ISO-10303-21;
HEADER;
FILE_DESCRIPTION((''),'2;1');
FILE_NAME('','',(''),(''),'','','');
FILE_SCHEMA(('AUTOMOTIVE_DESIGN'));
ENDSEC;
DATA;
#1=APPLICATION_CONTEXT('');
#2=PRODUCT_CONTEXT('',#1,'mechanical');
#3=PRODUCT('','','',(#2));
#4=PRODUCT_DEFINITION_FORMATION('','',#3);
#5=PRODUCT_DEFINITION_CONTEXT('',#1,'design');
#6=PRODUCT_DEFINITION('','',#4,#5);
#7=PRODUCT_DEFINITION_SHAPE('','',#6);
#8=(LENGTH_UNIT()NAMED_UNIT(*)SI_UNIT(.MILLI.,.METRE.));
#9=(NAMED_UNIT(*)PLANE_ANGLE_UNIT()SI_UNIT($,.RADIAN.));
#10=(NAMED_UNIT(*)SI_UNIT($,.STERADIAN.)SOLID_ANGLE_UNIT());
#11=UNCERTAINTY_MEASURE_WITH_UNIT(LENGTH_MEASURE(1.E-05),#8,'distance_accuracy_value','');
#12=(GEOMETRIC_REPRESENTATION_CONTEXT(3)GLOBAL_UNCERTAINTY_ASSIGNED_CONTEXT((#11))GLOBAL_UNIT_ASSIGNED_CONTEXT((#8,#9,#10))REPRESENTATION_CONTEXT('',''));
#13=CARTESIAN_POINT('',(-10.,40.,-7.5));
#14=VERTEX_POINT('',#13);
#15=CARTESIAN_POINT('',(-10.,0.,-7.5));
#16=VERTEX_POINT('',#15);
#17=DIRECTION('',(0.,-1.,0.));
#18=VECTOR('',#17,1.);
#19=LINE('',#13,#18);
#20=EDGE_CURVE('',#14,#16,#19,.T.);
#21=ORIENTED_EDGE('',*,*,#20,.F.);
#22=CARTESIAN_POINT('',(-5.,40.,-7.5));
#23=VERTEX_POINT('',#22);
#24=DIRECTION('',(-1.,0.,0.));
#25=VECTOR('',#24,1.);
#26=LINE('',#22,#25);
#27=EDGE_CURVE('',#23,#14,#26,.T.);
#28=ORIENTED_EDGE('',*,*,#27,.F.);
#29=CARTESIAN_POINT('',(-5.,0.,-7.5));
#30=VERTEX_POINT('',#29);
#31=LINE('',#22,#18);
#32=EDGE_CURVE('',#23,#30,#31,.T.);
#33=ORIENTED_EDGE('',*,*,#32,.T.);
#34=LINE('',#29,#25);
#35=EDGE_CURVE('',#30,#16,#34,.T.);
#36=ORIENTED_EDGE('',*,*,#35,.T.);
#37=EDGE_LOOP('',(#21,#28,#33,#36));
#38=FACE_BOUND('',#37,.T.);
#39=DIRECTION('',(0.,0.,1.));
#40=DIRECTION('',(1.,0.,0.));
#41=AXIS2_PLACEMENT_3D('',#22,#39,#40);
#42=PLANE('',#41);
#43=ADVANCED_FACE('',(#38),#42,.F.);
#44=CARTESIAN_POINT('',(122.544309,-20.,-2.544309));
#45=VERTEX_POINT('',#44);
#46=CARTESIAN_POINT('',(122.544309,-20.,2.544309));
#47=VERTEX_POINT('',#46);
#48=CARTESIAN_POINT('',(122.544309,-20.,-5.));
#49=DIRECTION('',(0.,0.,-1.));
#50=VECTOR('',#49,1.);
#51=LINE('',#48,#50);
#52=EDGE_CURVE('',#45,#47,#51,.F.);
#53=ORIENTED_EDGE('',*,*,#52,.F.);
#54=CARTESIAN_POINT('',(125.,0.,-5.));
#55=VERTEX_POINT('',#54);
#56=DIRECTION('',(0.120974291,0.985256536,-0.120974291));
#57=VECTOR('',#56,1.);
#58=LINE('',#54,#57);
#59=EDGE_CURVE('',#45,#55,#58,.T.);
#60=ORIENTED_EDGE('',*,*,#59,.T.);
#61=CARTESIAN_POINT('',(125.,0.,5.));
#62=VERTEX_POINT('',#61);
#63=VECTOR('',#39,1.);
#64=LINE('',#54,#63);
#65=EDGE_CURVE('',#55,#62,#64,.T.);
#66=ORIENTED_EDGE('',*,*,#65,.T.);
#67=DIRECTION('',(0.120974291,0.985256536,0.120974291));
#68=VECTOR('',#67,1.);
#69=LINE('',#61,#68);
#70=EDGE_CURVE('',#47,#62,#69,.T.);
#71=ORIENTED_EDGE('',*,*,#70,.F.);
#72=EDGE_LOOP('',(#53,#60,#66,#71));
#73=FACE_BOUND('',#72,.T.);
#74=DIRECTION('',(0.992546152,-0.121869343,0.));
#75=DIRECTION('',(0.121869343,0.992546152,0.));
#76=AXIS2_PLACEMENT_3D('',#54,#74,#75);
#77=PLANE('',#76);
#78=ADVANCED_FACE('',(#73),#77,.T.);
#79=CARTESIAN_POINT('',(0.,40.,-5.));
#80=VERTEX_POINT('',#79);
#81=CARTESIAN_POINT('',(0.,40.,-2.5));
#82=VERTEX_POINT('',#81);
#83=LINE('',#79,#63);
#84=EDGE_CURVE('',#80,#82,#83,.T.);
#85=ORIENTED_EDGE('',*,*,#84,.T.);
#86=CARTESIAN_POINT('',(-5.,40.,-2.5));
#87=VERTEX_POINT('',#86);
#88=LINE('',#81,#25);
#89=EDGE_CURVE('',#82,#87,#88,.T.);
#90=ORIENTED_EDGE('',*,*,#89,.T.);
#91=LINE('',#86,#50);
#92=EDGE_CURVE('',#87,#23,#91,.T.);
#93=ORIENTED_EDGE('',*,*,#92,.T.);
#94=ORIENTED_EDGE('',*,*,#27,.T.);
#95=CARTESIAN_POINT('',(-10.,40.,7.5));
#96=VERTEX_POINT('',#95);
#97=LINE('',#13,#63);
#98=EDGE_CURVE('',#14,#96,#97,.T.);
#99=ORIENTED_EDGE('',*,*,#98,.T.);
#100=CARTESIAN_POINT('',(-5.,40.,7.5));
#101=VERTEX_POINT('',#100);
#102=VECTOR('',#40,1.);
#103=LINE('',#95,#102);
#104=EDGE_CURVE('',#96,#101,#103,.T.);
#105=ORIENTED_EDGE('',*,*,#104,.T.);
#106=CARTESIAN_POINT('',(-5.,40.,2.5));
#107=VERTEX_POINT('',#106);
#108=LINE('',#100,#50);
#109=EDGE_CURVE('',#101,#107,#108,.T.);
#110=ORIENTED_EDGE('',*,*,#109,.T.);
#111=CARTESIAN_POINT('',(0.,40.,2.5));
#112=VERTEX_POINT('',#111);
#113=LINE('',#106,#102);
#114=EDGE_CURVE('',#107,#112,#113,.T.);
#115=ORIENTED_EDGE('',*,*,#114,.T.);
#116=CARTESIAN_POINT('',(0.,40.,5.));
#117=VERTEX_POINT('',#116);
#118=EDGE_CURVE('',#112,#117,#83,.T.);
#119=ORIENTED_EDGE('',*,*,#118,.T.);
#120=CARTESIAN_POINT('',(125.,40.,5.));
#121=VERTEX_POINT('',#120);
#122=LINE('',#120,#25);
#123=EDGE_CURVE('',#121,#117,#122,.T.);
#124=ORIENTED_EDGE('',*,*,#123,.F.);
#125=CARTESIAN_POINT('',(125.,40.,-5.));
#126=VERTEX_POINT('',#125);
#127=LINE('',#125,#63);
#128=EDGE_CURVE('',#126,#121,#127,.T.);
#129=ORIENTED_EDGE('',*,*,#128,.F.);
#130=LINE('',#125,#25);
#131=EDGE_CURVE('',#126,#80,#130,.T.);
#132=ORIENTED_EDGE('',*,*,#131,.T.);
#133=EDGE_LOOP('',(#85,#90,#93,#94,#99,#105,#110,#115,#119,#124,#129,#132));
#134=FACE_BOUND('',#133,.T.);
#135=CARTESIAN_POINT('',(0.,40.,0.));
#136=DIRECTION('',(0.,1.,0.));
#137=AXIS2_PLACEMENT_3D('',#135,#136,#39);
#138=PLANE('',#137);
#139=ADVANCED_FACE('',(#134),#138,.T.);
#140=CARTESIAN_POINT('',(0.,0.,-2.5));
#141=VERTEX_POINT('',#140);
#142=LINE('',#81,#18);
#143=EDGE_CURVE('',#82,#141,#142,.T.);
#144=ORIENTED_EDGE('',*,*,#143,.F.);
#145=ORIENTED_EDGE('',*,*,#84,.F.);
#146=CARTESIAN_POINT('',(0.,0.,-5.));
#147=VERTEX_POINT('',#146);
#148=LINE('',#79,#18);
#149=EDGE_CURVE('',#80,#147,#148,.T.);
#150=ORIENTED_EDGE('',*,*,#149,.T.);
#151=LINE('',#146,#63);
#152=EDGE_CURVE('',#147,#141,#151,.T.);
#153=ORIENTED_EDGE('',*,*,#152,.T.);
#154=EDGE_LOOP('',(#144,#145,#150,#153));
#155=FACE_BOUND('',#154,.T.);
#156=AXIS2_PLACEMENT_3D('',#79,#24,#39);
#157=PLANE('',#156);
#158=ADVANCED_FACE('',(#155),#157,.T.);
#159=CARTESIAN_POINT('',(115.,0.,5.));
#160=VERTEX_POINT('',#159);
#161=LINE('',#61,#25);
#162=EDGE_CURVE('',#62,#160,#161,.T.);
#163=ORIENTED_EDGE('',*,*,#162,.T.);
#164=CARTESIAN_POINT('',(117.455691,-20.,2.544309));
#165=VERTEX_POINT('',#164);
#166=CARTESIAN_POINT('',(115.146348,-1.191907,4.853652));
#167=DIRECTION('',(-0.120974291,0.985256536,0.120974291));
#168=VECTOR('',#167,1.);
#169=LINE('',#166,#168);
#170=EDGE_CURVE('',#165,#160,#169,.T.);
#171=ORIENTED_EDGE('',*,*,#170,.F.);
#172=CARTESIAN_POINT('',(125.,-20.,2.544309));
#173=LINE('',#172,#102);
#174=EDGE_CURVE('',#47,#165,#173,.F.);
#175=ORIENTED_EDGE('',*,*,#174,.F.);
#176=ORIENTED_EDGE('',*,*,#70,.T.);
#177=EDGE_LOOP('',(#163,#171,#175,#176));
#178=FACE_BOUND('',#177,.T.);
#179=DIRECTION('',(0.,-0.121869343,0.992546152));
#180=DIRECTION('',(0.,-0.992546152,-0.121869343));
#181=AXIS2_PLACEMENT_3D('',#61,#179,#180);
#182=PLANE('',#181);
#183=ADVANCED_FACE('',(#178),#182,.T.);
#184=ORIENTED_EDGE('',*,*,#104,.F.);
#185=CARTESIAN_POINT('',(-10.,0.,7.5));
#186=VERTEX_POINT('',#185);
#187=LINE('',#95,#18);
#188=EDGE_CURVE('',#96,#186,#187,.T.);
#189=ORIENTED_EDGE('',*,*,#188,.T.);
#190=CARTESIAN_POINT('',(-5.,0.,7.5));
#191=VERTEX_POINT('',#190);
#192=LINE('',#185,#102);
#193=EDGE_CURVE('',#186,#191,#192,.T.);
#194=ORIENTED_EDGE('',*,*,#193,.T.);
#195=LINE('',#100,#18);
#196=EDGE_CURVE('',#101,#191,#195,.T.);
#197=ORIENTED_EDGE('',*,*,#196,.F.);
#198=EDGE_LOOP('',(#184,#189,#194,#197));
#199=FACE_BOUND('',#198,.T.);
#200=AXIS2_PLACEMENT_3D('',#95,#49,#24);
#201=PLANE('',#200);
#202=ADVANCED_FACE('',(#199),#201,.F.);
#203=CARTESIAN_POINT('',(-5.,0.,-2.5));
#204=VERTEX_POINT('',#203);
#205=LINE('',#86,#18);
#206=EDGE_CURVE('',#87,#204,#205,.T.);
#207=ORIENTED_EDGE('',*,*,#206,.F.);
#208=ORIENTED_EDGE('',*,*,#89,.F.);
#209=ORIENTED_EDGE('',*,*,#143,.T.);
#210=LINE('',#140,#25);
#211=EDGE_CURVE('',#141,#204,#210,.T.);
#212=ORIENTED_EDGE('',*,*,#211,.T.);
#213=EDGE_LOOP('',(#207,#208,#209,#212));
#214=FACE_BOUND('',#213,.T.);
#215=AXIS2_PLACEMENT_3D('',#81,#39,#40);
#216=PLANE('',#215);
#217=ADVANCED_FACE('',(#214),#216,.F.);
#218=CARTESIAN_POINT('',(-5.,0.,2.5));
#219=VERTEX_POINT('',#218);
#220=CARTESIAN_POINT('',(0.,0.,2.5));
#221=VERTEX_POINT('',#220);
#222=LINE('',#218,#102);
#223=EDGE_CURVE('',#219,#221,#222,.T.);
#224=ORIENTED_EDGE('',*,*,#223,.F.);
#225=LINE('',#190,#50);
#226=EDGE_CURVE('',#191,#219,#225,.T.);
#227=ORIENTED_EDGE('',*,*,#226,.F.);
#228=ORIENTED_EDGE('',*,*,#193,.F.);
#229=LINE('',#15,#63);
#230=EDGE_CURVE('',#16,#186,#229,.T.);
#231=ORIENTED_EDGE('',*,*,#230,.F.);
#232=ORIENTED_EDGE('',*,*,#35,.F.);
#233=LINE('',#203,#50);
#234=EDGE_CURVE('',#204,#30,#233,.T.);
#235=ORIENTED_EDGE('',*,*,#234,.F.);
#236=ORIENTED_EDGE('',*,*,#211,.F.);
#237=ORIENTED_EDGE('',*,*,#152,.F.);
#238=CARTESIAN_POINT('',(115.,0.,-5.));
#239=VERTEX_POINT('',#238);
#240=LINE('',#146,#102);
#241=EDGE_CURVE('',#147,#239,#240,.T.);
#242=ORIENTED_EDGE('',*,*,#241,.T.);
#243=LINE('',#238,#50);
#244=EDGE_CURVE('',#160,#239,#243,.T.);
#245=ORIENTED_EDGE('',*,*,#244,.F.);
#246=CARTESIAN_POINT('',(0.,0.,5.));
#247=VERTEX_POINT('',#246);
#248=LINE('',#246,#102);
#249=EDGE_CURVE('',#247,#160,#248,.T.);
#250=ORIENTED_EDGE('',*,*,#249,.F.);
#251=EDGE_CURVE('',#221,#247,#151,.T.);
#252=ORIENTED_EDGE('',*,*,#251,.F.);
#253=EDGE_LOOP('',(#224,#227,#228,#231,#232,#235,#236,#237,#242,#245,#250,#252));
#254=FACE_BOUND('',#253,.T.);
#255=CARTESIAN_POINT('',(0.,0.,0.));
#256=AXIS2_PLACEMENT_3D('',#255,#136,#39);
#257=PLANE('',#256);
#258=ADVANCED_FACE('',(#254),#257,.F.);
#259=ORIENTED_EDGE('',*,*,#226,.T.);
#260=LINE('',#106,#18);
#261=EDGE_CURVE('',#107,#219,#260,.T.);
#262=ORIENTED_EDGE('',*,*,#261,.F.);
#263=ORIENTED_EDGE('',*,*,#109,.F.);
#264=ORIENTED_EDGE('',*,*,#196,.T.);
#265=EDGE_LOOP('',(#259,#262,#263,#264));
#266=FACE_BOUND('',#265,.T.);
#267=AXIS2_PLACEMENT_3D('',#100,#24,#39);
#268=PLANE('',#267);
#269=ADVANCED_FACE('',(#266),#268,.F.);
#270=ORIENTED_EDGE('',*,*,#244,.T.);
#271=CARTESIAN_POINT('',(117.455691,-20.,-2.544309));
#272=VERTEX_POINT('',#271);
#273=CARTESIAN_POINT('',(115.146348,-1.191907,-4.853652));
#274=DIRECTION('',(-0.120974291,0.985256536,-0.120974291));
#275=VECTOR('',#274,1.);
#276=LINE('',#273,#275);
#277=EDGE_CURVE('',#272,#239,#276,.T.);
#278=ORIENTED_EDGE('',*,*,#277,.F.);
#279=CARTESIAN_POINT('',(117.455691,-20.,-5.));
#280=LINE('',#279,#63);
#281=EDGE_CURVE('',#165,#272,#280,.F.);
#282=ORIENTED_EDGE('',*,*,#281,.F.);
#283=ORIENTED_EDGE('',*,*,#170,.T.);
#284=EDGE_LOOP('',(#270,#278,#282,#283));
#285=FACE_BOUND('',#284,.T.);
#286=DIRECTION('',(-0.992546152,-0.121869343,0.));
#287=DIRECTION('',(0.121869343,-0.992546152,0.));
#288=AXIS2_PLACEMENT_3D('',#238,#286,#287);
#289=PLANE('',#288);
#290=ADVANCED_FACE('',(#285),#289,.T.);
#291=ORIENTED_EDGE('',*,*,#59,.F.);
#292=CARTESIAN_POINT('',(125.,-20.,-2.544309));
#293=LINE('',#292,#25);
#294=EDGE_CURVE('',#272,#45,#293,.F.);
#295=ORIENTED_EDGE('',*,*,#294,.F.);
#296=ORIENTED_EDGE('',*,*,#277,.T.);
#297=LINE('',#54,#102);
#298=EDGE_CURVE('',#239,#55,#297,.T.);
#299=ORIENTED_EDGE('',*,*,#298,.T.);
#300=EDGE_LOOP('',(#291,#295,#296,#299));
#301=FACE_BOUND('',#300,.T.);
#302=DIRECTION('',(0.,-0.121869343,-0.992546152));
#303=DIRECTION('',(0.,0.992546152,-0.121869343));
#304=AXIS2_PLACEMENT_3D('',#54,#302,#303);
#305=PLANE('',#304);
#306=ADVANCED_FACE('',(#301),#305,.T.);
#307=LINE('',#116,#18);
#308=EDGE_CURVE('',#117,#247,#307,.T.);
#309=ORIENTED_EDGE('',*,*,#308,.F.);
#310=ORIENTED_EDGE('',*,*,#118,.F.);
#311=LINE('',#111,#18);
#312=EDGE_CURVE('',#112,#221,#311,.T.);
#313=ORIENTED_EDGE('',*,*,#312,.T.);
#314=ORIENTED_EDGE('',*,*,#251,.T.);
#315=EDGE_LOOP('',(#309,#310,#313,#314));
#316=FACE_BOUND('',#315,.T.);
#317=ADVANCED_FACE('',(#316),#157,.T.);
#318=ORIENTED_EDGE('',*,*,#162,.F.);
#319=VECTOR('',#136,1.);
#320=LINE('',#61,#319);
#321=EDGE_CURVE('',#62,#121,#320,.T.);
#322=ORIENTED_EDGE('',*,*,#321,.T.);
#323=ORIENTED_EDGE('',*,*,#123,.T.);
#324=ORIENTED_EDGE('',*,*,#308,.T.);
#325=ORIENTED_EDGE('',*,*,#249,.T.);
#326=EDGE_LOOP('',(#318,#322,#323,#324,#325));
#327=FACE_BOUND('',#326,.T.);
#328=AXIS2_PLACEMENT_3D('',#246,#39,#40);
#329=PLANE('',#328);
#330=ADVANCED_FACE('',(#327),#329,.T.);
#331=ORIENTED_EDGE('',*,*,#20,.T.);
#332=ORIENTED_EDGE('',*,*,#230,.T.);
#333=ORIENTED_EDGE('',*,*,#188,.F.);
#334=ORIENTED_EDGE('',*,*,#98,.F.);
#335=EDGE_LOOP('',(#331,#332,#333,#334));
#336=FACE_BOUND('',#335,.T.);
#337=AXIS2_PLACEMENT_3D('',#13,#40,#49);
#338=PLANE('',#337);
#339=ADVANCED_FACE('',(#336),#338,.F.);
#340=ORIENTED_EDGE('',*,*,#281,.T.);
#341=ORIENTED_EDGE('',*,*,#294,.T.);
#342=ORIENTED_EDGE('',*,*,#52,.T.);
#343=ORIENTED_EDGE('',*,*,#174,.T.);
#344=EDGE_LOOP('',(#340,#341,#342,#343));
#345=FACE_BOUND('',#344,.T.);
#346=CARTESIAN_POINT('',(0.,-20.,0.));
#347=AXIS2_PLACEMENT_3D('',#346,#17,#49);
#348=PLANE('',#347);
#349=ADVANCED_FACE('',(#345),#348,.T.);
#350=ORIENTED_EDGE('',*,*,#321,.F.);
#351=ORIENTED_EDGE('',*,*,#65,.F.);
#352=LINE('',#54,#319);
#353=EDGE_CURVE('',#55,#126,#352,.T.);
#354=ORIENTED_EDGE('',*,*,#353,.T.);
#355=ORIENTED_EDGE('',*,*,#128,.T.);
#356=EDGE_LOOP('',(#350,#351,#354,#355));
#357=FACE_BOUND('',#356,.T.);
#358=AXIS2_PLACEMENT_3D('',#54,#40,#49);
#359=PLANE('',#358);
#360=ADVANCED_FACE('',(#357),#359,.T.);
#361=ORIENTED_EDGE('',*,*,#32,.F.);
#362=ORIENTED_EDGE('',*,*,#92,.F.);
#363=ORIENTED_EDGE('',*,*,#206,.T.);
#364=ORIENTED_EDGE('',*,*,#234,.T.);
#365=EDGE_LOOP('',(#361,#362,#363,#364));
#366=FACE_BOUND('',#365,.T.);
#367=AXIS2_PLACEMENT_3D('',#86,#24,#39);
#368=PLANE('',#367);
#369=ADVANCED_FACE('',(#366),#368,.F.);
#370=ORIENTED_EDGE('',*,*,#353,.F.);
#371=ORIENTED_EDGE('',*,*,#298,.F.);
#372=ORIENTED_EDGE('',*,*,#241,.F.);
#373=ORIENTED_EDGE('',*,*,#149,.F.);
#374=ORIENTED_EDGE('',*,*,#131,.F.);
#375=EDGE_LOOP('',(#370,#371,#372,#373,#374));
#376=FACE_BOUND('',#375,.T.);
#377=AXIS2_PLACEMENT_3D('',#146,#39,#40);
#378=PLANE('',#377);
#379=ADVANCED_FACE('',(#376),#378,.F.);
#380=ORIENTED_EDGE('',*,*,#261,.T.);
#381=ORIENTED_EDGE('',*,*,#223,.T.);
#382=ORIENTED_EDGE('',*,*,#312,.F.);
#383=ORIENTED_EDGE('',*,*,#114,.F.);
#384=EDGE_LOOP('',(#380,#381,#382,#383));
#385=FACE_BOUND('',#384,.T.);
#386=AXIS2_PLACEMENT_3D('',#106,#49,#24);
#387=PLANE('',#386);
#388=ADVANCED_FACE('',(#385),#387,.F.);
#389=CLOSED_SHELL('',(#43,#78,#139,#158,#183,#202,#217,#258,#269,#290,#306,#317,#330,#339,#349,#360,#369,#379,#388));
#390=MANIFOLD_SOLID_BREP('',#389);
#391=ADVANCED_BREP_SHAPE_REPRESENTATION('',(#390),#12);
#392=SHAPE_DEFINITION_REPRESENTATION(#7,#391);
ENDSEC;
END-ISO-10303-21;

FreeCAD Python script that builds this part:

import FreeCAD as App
import Part
import Sketcher
from FreeCAD import Vector
Q = App.Units.Quantity


def add_polygon(sketch, points):
    """Adds a closed chain of lines whose ends are joined by coincident constraints."""
    first, n = sketch.GeometryCount, len(points)
    for a, b in zip(points, points[1:] + points[:1]):
        sketch.addGeometry(Part.LineSegment(App.Vector(*a, 0), App.Vector(*b, 0)), False)
    for i in range(n):
        sketch.addConstraint(Sketcher.Constraint("Coincident", first + i, 2, first + (i + 1) % n, 1))

doc = App.newDocument("Part")
params = doc.addObject("Spreadsheet::Sheet", "Params")
for row, (alias, value) in enumerate([
    ("sketch1_width", "5 mm"),
    ("pad1_length", "40 mm"),
    ("sketch2_width", "125 mm"),
    ("sketch2_height", "40 mm"),
    ("pad2_length", "5 mm"),
    ("pad2_length2", "5 mm"),
    ("sketch3_width", "10 mm"),
    ("pad3_length", "20 mm"),
    ("pad3_taper", "-7 deg"),
], start=1):
    params.set(f"A{row}", alias)
    params.set(f"B{row}", "=" + value)
    params.setAlias(f"B{row}", alias)

body = doc.addObject("PartDesign::Body", "Body")

# Sketch on XZ plane
sketch1 = body.newObject("Sketcher::SketchObject", "Sketch")
sketch1.AttachmentSupport = (doc.getObject("XZ_Plane"), [""])
sketch1.MapMode = "FlatFace"
add_polygon(sketch1, [(-10, -8), (-10, 8), (-5, 8), (-5, 2), (0, 2), (0, -2), (-5, -2), (-5, -8)])  # lines 0-7
sketch1.addConstraint([
    Sketcher.Constraint("Vertical", 0),
    Sketcher.Constraint("Horizontal", 1),
    Sketcher.Constraint("Vertical", 2),
    Sketcher.Constraint("Horizontal", 3),
    Sketcher.Constraint("Vertical", 4),
    Sketcher.Constraint("Horizontal", 5),
    Sketcher.Constraint("Vertical", 6),
    Sketcher.Constraint("Horizontal", 7),
    Sketcher.Constraint("Symmetric", 3, 2, 4, 2, -1, 1),
    Sketcher.Constraint("Symmetric", 1, 2, 6, 2, -1),
    Sketcher.Constraint("Equal", 1, 3),
    Sketcher.Constraint("Equal", 7, 2),
    Sketcher.Constraint("Equal", 2, 4),
    Sketcher.Constraint("DistanceX", 1, 1, 1, 2, Q("5 mm")),
])
sketch1.setExpression("Constraints[21]", "Params.sketch1_width")
pad1 = body.newObject("PartDesign::Pad", "Pad")
pad1.Profile = sketch1
pad1.setExpression("Length", "Params.pad1_length")
pad1.Reversed = True

# Sketch on XY plane
sketch2 = body.newObject("Sketcher::SketchObject", "Sketch001")
sketch2.AttachmentSupport = (doc.getObject("XY_Plane"), [""])
sketch2.MapMode = "FlatFace"
add_polygon(sketch2, [(0, 40), (0, 0), (125, 0), (125, 40)])  # lines 0-3
sketch2.addConstraint([
    Sketcher.Constraint("Vertical", 0),
    Sketcher.Constraint("Horizontal", 1),
    Sketcher.Constraint("Vertical", 2),
    Sketcher.Constraint("Horizontal", 3),
    Sketcher.Constraint("Coincident", 0, 2, -1, 1),
    Sketcher.Constraint("DistanceX", 1, 1, 1, 2, Q("125 mm")),
    Sketcher.Constraint("DistanceY", 0, 2, 0, 1, Q("40 mm")),
])
sketch2.setExpression("Constraints[9]", "Params.sketch2_width")
sketch2.setExpression("Constraints[10]", "Params.sketch2_height")
pad2 = body.newObject("PartDesign::Pad", "Pad001")
pad2.Profile = sketch2
pad2.Type = "TwoLengths"
pad2.setExpression("Length", "Params.pad2_length")
pad2.setExpression("Length2", "Params.pad2_length2")

# Sketch on XZ plane
sketch3 = body.newObject("Sketcher::SketchObject", "Sketch002")
sketch3.AttachmentSupport = (doc.getObject("XZ_Plane"), [""])
sketch3.MapMode = "FlatFace"
add_polygon(sketch3, [(115, 5), (115, -5), (125, -5), (125, 5)])  # lines 0-3
sketch3.addConstraint([
    Sketcher.Constraint("Vertical", 0),
    Sketcher.Constraint("Horizontal", 1),
    Sketcher.Constraint("Vertical", 2),
    Sketcher.Constraint("Horizontal", 3),
    Sketcher.Constraint("Equal", 3, 0),
    Sketcher.Constraint("DistanceX", 1, 1, 1, 2, Q("10 mm")),
    Sketcher.Constraint("DistanceX", -1, 1, 0, 2, Q("115 mm")),
    Sketcher.Constraint("DistanceY", 0, 2, -1, 1, Q("5 mm")),
])
sketch3.setExpression("Constraints[9]", "Params.sketch3_width")
pad3 = body.newObject("PartDesign::Pad", "Pad002")
pad3.Profile = sketch3
pad3.setExpression("Length", "Params.pad3_length")
pad3.setExpression("TaperAngle", "Params.pad3_taper")

doc.recompute()
